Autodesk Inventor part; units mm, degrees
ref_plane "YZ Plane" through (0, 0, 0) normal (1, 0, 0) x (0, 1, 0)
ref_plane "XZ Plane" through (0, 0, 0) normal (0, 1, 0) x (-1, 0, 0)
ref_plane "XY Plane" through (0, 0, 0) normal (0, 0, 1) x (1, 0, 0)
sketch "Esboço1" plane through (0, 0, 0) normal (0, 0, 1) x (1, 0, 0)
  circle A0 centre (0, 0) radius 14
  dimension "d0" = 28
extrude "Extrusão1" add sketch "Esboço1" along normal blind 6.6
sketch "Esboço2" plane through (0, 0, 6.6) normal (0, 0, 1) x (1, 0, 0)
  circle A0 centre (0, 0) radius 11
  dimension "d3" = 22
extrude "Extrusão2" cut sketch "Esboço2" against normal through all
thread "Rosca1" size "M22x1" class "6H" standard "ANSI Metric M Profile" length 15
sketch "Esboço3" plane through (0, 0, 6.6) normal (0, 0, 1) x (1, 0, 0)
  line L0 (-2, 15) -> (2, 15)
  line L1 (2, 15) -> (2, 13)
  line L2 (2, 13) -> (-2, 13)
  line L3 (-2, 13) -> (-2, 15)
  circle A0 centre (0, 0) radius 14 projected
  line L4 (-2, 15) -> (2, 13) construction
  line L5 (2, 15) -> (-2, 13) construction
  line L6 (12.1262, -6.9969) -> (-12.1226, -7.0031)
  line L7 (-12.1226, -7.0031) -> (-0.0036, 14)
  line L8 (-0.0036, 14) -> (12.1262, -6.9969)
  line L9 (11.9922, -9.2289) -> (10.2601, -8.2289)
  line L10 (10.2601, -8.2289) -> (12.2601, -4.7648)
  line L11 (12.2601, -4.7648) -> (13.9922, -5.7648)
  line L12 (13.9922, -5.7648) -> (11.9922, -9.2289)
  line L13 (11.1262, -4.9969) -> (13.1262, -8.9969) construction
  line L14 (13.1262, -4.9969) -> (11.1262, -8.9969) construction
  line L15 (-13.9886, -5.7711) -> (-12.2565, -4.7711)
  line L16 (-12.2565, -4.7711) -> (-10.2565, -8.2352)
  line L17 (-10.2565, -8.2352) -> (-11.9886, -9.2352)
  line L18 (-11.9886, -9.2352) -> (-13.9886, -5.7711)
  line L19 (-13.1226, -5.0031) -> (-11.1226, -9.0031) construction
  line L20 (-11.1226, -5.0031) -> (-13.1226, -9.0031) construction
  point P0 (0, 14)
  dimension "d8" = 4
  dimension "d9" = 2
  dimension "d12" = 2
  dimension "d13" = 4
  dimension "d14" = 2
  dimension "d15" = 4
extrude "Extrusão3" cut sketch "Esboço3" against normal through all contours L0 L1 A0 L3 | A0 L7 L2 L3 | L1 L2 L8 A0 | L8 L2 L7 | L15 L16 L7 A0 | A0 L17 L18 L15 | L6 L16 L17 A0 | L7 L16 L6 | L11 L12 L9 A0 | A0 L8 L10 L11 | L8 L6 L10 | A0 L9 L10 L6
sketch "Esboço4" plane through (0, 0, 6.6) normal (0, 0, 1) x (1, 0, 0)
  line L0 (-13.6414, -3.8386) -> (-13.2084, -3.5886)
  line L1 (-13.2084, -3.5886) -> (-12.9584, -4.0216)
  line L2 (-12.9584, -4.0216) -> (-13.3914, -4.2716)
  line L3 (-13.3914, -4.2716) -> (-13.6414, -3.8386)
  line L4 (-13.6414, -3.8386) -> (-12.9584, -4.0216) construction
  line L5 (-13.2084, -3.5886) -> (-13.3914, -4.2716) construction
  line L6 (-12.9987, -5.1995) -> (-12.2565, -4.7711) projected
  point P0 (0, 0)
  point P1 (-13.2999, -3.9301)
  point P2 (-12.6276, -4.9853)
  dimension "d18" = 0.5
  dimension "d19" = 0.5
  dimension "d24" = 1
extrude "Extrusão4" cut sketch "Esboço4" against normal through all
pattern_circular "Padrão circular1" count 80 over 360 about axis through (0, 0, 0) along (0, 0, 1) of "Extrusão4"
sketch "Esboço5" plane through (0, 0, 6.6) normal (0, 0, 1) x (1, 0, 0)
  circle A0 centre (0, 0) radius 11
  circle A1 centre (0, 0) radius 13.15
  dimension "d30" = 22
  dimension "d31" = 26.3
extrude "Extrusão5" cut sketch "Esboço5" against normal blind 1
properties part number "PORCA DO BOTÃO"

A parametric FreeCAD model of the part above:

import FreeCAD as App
import Part
import Sketcher
from FreeCAD import Vector
Q = App.Units.Quantity


def add_polygon(sketch, points):
    """Adds a closed chain of lines whose ends are joined by coincident constraints."""
    first, n = sketch.GeometryCount, len(points)
    for a, b in zip(points, points[1:] + points[:1]):
        sketch.addGeometry(Part.LineSegment(App.Vector(*a, 0), App.Vector(*b, 0)), False)
    for i in range(n):
        sketch.addConstraint(Sketcher.Constraint("Coincident", first + i, 2, first + (i + 1) % n, 1))

doc = App.newDocument("Part")
body = doc.addObject("PartDesign::Body", "Body")

# Sketch on XY plane
sketch1 = body.newObject("Sketcher::SketchObject", "Sketch")
sketch1.AttachmentSupport = (doc.getObject("XY_Plane"), [""])
sketch1.MapMode = "FlatFace"
sketch1.addGeometry(Part.Circle(Vector(0, 0, 0), Vector(0, 0, 1), 14), False)
sketch1.addConstraint([
    Sketcher.Constraint("Coincident", 0, 3, -1, 1),
    Sketcher.Constraint("Diameter", 0, 28.0),
])
pad1 = body.newObject("PartDesign::Pad", "Pad")
pad1.Profile = sketch1
pad1.Length = 6.6

# Sketch on XY plane
sketch2 = body.newObject("Sketcher::SketchObject", "Sketch001")
sketch2.AttachmentSupport = (doc.getObject("XY_Plane"), [""])
sketch2.MapMode = "FlatFace"
sketch2.AttachmentOffset = App.Placement(Vector(0, 0, 6.6), App.Rotation())
sketch2.addGeometry(Part.Circle(Vector(0, 0, 0), Vector(0, 0, 1), 11), False)
sketch2.addConstraint([
    Sketcher.Constraint("Coincident", 0, 3, -1, 1),
    Sketcher.Constraint("Diameter", 0, 22.0),
])
pocket1 = body.newObject("PartDesign::Pocket", "Pocket")
pocket1.Profile = sketch2
pocket1.Type = "ThroughAll"

# Sketch on XY plane
sketch3 = body.newObject("Sketcher::SketchObject", "Sketch002")
sketch3.AttachmentSupport = (doc.getObject("XY_Plane"), [""])
sketch3.MapMode = "FlatFace"
sketch3.AttachmentOffset = App.Placement(Vector(0, 0, 6.6), App.Rotation())
add_polygon(sketch3, [(2, 15), (-2, 15), (-2, 13), (2, 13)])  # lines 0-3
add_polygon(sketch3, [(-12.2565, -4.7711), (-13.9886, -5.7711), (-11.9886, -9.2352), (-10.2565, -8.2352)])  # lines 4-7
add_polygon(sketch3, [(13.9922, -5.7648), (12.2601, -4.7648), (10.2601, -8.2289), (11.9922, -9.2289)])  # lines 8-11
sketch3.addConstraint([
    Sketcher.Constraint("Horizontal", 0),
    Sketcher.Constraint("Vertical", 1),
    Sketcher.Constraint("Horizontal", 2),
    Sketcher.Constraint("Vertical", 3),
    Sketcher.Constraint("Perpendicular", 4, 5),
    Sketcher.Constraint("Perpendicular", 5, 6),
    Sketcher.Constraint("Perpendicular", 6, 7),
    Sketcher.Constraint("Perpendicular", 8, 9),
    Sketcher.Constraint("Perpendicular", 9, 10),
    Sketcher.Constraint("Perpendicular", 10, 11),
    Sketcher.Constraint("Equal", 6, 8),
    Sketcher.Constraint("Equal", 7, 9),
    Sketcher.Constraint("DistanceX", 0, 2, 0, 1, 4.0),
    Sketcher.Constraint("DistanceY", 1, 2, 1, 1, 2.0),
    Sketcher.Constraint("Distance", 4, 2.0),
    Sketcher.Constraint("Distance", 5, 4.0),
    Sketcher.Constraint("DistanceX", 0, 2, -1, 1, 2.0),
    Sketcher.Constraint("DistanceX", 4, 2, 5, 2, 2.0),
    Sketcher.Constraint("DistanceX", 9, 2, 8, 2, 2.0),
    Sketcher.Constraint("DistanceY", -1, 1, 0, 2, 15.0),
    Sketcher.Constraint("DistanceX", -1, 1, 8, 2, 12.26),
    Sketcher.Constraint("DistanceY", 4, 2, -1, 1, 5.771),
    Sketcher.Constraint("DistanceY", 9, 2, -1, 1, 8.229),
    Sketcher.Constraint("DistanceX", 4, 2, -1, 1, 13.9886),
])
pocket2 = body.newObject("PartDesign::Pocket", "Pocket001")
pocket2.Profile = sketch3
pocket2.Type = "ThroughAll"

# Sketch on XY plane
sketch4 = body.newObject("Sketcher::SketchObject", "Sketch003")
sketch4.AttachmentSupport = (doc.getObject("XY_Plane"), [""])
sketch4.MapMode = "FlatFace"
sketch4.AttachmentOffset = App.Placement(Vector(0, 0, 6.6), App.Rotation())
add_polygon(sketch4, [(-13.2084, -3.5886), (-13.6414, -3.8386), (-13.3914, -4.2716), (-12.9584, -4.0216)])  # lines 0-3
sketch4.addConstraint([
    Sketcher.Constraint("Perpendicular", 0, 1),
    Sketcher.Constraint("Perpendicular", 1, 2),
    Sketcher.Constraint("Perpendicular", 2, 3),
    Sketcher.Constraint("Equal", 0, 1),
    Sketcher.Constraint("Distance", 0, 0.5),
    Sketcher.Constraint("Angle", 0, Q("-149.9993 deg")),
    Sketcher.Constraint("DistanceX", 0, 2, -1, 1, 13.6414),
    Sketcher.Constraint("DistanceY", 0, 2, -1, 1, 3.8386),
])
pocket3 = body.newObject("PartDesign::Pocket", "Pocket002")
pocket3.Profile = sketch4
pocket3.Type = "ThroughAll"
doc.recompute()

polarpattern = body.newObject("PartDesign::PolarPattern", "PolarPattern")
polarpattern.Originals = [pocket3]
polarpattern.Axis = (doc.getObject("Z_Axis"), [""])
polarpattern.Angle = 360
polarpattern.Occurrences = 80
body.Tip = polarpattern

# Sketch on XY plane
sketch5 = body.newObject("Sketcher::SketchObject", "Sketch004")
sketch5.AttachmentSupport = (doc.getObject("XY_Plane"), [""])
sketch5.MapMode = "FlatFace"
sketch5.AttachmentOffset = App.Placement(Vector(0, 0, 6.6), App.Rotation())
sketch5.addGeometry([
    Part.Circle(Vector(0, 0, 0), Vector(0, 0, 1), 13.15),
    Part.Circle(Vector(0, 0, 0), Vector(0, 0, 1), 11),
], False)
sketch5.addConstraint([
    Sketcher.Constraint("Coincident", 0, 3, -1, 1),
    Sketcher.Constraint("Coincident", 1, 3, -1, 1),
    Sketcher.Constraint("Diameter", 1, 22.0),
    Sketcher.Constraint("Diameter", 0, 26.3),
])
pocket4 = body.newObject("PartDesign::Pocket", "Pocket003")
pocket4.Profile = sketch5
pocket4.Length = 1

doc.recompute()
